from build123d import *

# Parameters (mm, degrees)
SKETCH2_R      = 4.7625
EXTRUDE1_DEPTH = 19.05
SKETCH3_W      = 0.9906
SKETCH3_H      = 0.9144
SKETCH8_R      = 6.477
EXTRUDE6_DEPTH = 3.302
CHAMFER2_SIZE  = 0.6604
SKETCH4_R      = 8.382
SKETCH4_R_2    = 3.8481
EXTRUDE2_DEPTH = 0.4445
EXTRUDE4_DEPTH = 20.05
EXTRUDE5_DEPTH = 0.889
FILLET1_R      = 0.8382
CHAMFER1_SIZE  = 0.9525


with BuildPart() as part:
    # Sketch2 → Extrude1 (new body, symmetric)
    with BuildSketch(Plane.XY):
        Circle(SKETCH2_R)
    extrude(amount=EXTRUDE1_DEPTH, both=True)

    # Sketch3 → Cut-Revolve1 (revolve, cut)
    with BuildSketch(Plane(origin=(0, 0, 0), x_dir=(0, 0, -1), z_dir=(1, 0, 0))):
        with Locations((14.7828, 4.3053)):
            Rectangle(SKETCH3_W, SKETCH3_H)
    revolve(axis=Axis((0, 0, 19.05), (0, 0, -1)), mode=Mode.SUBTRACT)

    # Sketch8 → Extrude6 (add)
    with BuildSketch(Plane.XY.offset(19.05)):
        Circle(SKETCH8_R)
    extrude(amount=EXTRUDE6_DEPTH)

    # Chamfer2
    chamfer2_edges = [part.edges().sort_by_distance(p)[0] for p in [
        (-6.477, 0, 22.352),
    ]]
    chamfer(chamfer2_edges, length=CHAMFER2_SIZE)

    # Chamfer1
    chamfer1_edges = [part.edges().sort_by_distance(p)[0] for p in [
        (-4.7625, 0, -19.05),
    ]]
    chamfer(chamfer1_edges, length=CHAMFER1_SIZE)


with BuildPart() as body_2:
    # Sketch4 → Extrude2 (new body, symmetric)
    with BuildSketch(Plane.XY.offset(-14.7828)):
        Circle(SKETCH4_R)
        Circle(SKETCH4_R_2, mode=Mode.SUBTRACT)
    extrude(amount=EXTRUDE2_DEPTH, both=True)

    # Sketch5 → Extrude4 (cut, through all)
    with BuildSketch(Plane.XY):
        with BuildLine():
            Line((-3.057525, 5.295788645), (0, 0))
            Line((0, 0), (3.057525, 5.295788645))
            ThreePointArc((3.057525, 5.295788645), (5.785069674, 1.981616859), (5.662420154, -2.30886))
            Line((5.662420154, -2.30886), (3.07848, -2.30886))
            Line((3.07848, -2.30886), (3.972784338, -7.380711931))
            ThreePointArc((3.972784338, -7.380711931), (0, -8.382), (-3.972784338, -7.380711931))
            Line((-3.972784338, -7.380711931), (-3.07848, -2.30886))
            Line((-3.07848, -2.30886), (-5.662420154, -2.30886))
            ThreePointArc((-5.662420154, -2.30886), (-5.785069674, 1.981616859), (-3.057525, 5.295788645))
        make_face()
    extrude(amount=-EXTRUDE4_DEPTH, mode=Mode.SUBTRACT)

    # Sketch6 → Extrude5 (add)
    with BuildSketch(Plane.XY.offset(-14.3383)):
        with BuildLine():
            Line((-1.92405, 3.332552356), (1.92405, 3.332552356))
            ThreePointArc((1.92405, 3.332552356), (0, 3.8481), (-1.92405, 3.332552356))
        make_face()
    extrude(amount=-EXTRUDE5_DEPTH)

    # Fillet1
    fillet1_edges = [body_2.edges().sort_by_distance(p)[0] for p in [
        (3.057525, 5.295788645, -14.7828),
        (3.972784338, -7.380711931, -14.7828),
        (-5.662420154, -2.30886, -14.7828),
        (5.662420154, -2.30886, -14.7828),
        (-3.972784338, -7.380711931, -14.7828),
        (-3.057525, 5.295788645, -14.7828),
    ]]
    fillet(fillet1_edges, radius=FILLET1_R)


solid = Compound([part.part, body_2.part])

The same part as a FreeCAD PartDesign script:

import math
import FreeCAD as App
import Part
import Sketcher
Q = App.Units.Quantity


def edges_at(feature, points):
    """Names of the edges that pass closest to the given points."""
    edges = feature.Shape.Edges
    near = lambda p: min(range(len(edges)), key=lambda i: edges[i].distToShape(Part.Vertex(*p))[0])
    return sorted({f"Edge{near(p) + 1}" for p in points})


def add_polygon(sketch, points):
    """Adds a closed chain of lines whose ends are joined by coincident constraints."""
    first, n = sketch.GeometryCount, len(points)
    for a, b in zip(points, points[1:] + points[:1]):
        sketch.addGeometry(Part.LineSegment(App.Vector(*a, 0), App.Vector(*b, 0)), False)
    for i in range(n):
        sketch.addConstraint(Sketcher.Constraint("Coincident", first + i, 2, first + (i + 1) % n, 1))

doc = App.newDocument("Part")
body = doc.addObject("PartDesign::Body", "Body")

# Sketch on XY plane
sketch1 = body.newObject("Sketcher::SketchObject", "Sketch")
sketch1.AttachmentSupport = (doc.getObject("XY_Plane"), [""])
sketch1.MapMode = "FlatFace"
sketch1.addGeometry(Part.Circle(App.Vector(0, 0, 0), App.Vector(0, 0, 1), 4.8), False)
sketch1.addConstraint([
    Sketcher.Constraint("Coincident", 0, 3, -1, 1),
    Sketcher.Constraint("Diameter", 0, Q("0.375 in")),
])
pad1 = body.newObject("PartDesign::Pad", "Pad")
pad1.Profile = sketch1
pad1.Length = Q("1.5 in")
pad1.Midplane = True

# Sketch on YZ plane
sketch2 = body.newObject("Sketcher::SketchObject", "Sketch001")
sketch2.AttachmentSupport = (doc.getObject("YZ_Plane"), [""])
sketch2.MapMode = "FlatFace"
add_polygon(sketch2, [(4.8, -14.3), (3.8, -14.3), (3.8, -15.3), (4.8, -15.3)])  # lines 0-3
sketch2.addConstraint([
    Sketcher.Constraint("Horizontal", 0),
    Sketcher.Constraint("Vertical", 1),
    Sketcher.Constraint("Horizontal", 2),
    Sketcher.Constraint("Vertical", 3),
    Sketcher.Constraint("DistanceX", 0, 2, 0, 1, Q("0.036 in")),
    Sketcher.Constraint("DistanceY", 1, 2, 1, 1, Q("0.039 in")),
    Sketcher.Constraint("DistanceY", 0, 2, -1, 1, Q("0.5625 in")),
    Sketcher.Constraint("DistanceX", -1, 1, 2, 2, Q("0.1875 in")),
])
groove = body.newObject("PartDesign::Groove", "Groove")
groove.Profile = sketch2
groove.ReferenceAxis = (sketch2, ["V_Axis"])
groove.Angle = 360

# Sketch on XY plane
sketch3 = body.newObject("Sketcher::SketchObject", "Sketch002")
sketch3.AttachmentSupport = (doc.getObject("XY_Plane"), [""])
sketch3.MapMode = "FlatFace"
sketch3.AttachmentOffset = App.Placement(App.Vector(0, 0, 0.75 * 25.4), App.Rotation())
sketch3.addGeometry(Part.Circle(App.Vector(0, 0, 0), App.Vector(0, 0, 1), 6), False)
sketch3.addConstraint([
    Sketcher.Constraint("Coincident", 0, 3, -1, 1),
    Sketcher.Constraint("Diameter", 0, Q("0.51 in")),
])
pad2 = body.newObject("PartDesign::Pad", "Pad001")
pad2.Profile = sketch3
pad2.Length = Q("0.13 in")
doc.recompute()

chamfer = body.newObject("PartDesign::Chamfer", "Chamfer")
chamfer.Base = (pad2, edges_at(pad2, [(-6.477, 0, 22.352)]))
chamfer.Size = Q("0.026 in")
doc.recompute()

chamfer2 = body.newObject("PartDesign::Chamfer", "Chamfer001")
chamfer2.Base = (chamfer, edges_at(chamfer, [(-4.763, 0, -19.05)]))
chamfer2.Size = Q("0.0375 in")
body2 = doc.addObject("PartDesign::Body", "Body001")

# Sketch on XY plane
sketch4 = body2.newObject("Sketcher::SketchObject", "Sketch003")
sketch4.AttachmentSupport = (doc.getObject("XY_Plane001"), [""])
sketch4.MapMode = "FlatFace"
sketch4.AttachmentOffset = App.Placement(App.Vector(0, 0, -0.582 * 25.4), App.Rotation())
sketch4.addGeometry([
    Part.Circle(App.Vector(0, 0, 0), App.Vector(0, 0, 1), 8.4),
    Part.Circle(App.Vector(0, 0, 0), App.Vector(0, 0, 1), 3.8),
], False)
sketch4.addConstraint([
    Sketcher.Constraint("Coincident", 0, 3, -1, 1),
    Sketcher.Constraint("Coincident", 1, 3, -1, 1),
    Sketcher.Constraint("Diameter", 0, Q("0.66 in")),
    Sketcher.Constraint("Diameter", 1, Q("0.303 in")),
])
pad3 = body2.newObject("PartDesign::Pad", "Pad002")
pad3.Profile = sketch4
pad3.Length = Q("0.035 in")
pad3.Midplane = True

# Sketch on XY plane
sketch5 = body2.newObject("Sketcher::SketchObject", "Sketch004")
sketch5.AttachmentSupport = (doc.getObject("XY_Plane001"), [""])
sketch5.MapMode = "FlatFace"
sketch5.addGeometry([
    Part.LineSegment(App.Vector(0, 0, 0), App.Vector(-3.1, 5.3, 0)),  # 0
    Part.ArcOfCircle(Part.Circle(App.Vector(0, 0, 0), App.Vector(0, 0, 1), 6.1), math.radians(120), math.radians(202)),  # 1
    Part.LineSegment(App.Vector(-5.7, -2.3, 0), App.Vector(-3.1, -2.3, 0)),  # 2
    Part.LineSegment(App.Vector(-3.1, -2.3, 0), App.Vector(-4, -7.4, 0)),  # 3
    Part.ArcOfCircle(Part.Circle(App.Vector(0, 0, 0), App.Vector(0, 0, 1), 8.4), math.radians(-118), math.radians(-62)),  # 4
    Part.LineSegment(App.Vector(4, -7.4, 0), App.Vector(3.1, -2.3, 0)),  # 5
    Part.LineSegment(App.Vector(3.1, -2.3, 0), App.Vector(5.7, -2.3, 0)),  # 6
    Part.ArcOfCircle(Part.Circle(App.Vector(0, 0, 0), App.Vector(0, 0, 1), 6.1), math.radians(-22), math.radians(60)),  # 7
    Part.LineSegment(App.Vector(3.1, 5.3, 0), App.Vector(0, 0, 0)),  # 8
], False)
sketch5.addConstraint([
    Sketcher.Constraint("Coincident", 0, 2, 1, 1),
    Sketcher.Constraint("Coincident", 1, 2, 2, 1),
    Sketcher.Constraint("Coincident", 2, 2, 3, 1),
    Sketcher.Constraint("Coincident", 3, 2, 4, 1),
    Sketcher.Constraint("Coincident", 4, 2, 5, 1),
    Sketcher.Constraint("Coincident", 5, 2, 6, 1),
    Sketcher.Constraint("Coincident", 6, 2, 7, 1),
    Sketcher.Constraint("Coincident", 7, 2, 8, 1),
    Sketcher.Constraint("Coincident", 8, 2, 0, 1),
    Sketcher.Constraint("Horizontal", 2),
    Sketcher.Constraint("Horizontal", 6),
    Sketcher.Constraint("Coincident", 1, 3, -1, 1),
    Sketcher.Constraint("Coincident", 4, 3, -1, 1),
    Sketcher.Constraint("Coincident", 7, 3, -1, 1),
    Sketcher.Constraint("Coincident", 8, 2, -1, 1),
    Sketcher.Constraint("Equal", 1, 7),
    Sketcher.Constraint("Symmetric", 2, 2, 5, 2, -2),
    Sketcher.Constraint("Horizontal", 3, 2, 4, 2),
    Sketcher.Constraint("Horizontal", 0, 2, 7, 2),
    Sketcher.Constraint("Radius", 4, Q("0.33 in")),
    Sketcher.Constraint("Angle", 0, Q("120 deg")),
    Sketcher.Constraint("Angle", 3, Q("-100 deg")),
    Sketcher.Constraint("Radius", 1, Q("6.11505 mm")),
    Sketcher.Constraint("DistanceY", 1, 2, -1, 1, Q("0.0909 in")),
    Sketcher.Constraint("DistanceX", 2, 2, -1, 1, Q("0.1212 in")),
])
pocket1 = body2.newObject("PartDesign::Pocket", "Pocket")
pocket1.Profile = sketch5
pocket1.Type = "ThroughAll"

# Sketch on XY plane
sketch6 = body2.newObject("Sketcher::SketchObject", "Sketch005")
sketch6.AttachmentSupport = (doc.getObject("XY_Plane001"), [""])
sketch6.MapMode = "FlatFace"
sketch6.AttachmentOffset = App.Placement(App.Vector(0, 0, -0.5645 * 25.4), App.Rotation())
sketch6.addGeometry([
    Part.LineSegment(App.Vector(-1.9, 3.3, 0), App.Vector(1.9, 3.3, 0)),
    Part.ArcOfCircle(Part.Circle(App.Vector(0, 0, 0), App.Vector(0, 0, 1), 3.8), math.radians(60), math.radians(120)),
], False)
sketch6.addConstraint([
    Sketcher.Constraint("Coincident", 0, 1, 1, 2),
    Sketcher.Constraint("Coincident", 1, 1, 0, 2),
    Sketcher.Constraint("Horizontal", 0),
    Sketcher.Constraint("Coincident", 1, 3, -1, 1),
    Sketcher.Constraint("Radius", 1, Q("0.1515 in")),
    Sketcher.Constraint("DistanceX", 0, 1, 0, 2, Q("0.1515 in")),
])
pad4 = body2.newObject("PartDesign::Pad", "Pad003")
pad4.Profile = sketch6
pad4.Length = Q("0.035 in")
pad4.Reversed = True
doc.recompute()

fillet = body2.newObject("PartDesign::Fillet", "Fillet")
fillet.Base = (pad4, edges_at(pad4, [
    (3.058, 5.296, -14.783),
    (3.973, -7.381, -14.783),
    (-5.662, -2.309, -14.783),
    (5.662, -2.309, -14.783),
    (-3.973, -7.381, -14.783),
    (-3.058, 5.296, -14.783),
]))
fillet.Radius = Q("0.033 in")

doc.recompute()
